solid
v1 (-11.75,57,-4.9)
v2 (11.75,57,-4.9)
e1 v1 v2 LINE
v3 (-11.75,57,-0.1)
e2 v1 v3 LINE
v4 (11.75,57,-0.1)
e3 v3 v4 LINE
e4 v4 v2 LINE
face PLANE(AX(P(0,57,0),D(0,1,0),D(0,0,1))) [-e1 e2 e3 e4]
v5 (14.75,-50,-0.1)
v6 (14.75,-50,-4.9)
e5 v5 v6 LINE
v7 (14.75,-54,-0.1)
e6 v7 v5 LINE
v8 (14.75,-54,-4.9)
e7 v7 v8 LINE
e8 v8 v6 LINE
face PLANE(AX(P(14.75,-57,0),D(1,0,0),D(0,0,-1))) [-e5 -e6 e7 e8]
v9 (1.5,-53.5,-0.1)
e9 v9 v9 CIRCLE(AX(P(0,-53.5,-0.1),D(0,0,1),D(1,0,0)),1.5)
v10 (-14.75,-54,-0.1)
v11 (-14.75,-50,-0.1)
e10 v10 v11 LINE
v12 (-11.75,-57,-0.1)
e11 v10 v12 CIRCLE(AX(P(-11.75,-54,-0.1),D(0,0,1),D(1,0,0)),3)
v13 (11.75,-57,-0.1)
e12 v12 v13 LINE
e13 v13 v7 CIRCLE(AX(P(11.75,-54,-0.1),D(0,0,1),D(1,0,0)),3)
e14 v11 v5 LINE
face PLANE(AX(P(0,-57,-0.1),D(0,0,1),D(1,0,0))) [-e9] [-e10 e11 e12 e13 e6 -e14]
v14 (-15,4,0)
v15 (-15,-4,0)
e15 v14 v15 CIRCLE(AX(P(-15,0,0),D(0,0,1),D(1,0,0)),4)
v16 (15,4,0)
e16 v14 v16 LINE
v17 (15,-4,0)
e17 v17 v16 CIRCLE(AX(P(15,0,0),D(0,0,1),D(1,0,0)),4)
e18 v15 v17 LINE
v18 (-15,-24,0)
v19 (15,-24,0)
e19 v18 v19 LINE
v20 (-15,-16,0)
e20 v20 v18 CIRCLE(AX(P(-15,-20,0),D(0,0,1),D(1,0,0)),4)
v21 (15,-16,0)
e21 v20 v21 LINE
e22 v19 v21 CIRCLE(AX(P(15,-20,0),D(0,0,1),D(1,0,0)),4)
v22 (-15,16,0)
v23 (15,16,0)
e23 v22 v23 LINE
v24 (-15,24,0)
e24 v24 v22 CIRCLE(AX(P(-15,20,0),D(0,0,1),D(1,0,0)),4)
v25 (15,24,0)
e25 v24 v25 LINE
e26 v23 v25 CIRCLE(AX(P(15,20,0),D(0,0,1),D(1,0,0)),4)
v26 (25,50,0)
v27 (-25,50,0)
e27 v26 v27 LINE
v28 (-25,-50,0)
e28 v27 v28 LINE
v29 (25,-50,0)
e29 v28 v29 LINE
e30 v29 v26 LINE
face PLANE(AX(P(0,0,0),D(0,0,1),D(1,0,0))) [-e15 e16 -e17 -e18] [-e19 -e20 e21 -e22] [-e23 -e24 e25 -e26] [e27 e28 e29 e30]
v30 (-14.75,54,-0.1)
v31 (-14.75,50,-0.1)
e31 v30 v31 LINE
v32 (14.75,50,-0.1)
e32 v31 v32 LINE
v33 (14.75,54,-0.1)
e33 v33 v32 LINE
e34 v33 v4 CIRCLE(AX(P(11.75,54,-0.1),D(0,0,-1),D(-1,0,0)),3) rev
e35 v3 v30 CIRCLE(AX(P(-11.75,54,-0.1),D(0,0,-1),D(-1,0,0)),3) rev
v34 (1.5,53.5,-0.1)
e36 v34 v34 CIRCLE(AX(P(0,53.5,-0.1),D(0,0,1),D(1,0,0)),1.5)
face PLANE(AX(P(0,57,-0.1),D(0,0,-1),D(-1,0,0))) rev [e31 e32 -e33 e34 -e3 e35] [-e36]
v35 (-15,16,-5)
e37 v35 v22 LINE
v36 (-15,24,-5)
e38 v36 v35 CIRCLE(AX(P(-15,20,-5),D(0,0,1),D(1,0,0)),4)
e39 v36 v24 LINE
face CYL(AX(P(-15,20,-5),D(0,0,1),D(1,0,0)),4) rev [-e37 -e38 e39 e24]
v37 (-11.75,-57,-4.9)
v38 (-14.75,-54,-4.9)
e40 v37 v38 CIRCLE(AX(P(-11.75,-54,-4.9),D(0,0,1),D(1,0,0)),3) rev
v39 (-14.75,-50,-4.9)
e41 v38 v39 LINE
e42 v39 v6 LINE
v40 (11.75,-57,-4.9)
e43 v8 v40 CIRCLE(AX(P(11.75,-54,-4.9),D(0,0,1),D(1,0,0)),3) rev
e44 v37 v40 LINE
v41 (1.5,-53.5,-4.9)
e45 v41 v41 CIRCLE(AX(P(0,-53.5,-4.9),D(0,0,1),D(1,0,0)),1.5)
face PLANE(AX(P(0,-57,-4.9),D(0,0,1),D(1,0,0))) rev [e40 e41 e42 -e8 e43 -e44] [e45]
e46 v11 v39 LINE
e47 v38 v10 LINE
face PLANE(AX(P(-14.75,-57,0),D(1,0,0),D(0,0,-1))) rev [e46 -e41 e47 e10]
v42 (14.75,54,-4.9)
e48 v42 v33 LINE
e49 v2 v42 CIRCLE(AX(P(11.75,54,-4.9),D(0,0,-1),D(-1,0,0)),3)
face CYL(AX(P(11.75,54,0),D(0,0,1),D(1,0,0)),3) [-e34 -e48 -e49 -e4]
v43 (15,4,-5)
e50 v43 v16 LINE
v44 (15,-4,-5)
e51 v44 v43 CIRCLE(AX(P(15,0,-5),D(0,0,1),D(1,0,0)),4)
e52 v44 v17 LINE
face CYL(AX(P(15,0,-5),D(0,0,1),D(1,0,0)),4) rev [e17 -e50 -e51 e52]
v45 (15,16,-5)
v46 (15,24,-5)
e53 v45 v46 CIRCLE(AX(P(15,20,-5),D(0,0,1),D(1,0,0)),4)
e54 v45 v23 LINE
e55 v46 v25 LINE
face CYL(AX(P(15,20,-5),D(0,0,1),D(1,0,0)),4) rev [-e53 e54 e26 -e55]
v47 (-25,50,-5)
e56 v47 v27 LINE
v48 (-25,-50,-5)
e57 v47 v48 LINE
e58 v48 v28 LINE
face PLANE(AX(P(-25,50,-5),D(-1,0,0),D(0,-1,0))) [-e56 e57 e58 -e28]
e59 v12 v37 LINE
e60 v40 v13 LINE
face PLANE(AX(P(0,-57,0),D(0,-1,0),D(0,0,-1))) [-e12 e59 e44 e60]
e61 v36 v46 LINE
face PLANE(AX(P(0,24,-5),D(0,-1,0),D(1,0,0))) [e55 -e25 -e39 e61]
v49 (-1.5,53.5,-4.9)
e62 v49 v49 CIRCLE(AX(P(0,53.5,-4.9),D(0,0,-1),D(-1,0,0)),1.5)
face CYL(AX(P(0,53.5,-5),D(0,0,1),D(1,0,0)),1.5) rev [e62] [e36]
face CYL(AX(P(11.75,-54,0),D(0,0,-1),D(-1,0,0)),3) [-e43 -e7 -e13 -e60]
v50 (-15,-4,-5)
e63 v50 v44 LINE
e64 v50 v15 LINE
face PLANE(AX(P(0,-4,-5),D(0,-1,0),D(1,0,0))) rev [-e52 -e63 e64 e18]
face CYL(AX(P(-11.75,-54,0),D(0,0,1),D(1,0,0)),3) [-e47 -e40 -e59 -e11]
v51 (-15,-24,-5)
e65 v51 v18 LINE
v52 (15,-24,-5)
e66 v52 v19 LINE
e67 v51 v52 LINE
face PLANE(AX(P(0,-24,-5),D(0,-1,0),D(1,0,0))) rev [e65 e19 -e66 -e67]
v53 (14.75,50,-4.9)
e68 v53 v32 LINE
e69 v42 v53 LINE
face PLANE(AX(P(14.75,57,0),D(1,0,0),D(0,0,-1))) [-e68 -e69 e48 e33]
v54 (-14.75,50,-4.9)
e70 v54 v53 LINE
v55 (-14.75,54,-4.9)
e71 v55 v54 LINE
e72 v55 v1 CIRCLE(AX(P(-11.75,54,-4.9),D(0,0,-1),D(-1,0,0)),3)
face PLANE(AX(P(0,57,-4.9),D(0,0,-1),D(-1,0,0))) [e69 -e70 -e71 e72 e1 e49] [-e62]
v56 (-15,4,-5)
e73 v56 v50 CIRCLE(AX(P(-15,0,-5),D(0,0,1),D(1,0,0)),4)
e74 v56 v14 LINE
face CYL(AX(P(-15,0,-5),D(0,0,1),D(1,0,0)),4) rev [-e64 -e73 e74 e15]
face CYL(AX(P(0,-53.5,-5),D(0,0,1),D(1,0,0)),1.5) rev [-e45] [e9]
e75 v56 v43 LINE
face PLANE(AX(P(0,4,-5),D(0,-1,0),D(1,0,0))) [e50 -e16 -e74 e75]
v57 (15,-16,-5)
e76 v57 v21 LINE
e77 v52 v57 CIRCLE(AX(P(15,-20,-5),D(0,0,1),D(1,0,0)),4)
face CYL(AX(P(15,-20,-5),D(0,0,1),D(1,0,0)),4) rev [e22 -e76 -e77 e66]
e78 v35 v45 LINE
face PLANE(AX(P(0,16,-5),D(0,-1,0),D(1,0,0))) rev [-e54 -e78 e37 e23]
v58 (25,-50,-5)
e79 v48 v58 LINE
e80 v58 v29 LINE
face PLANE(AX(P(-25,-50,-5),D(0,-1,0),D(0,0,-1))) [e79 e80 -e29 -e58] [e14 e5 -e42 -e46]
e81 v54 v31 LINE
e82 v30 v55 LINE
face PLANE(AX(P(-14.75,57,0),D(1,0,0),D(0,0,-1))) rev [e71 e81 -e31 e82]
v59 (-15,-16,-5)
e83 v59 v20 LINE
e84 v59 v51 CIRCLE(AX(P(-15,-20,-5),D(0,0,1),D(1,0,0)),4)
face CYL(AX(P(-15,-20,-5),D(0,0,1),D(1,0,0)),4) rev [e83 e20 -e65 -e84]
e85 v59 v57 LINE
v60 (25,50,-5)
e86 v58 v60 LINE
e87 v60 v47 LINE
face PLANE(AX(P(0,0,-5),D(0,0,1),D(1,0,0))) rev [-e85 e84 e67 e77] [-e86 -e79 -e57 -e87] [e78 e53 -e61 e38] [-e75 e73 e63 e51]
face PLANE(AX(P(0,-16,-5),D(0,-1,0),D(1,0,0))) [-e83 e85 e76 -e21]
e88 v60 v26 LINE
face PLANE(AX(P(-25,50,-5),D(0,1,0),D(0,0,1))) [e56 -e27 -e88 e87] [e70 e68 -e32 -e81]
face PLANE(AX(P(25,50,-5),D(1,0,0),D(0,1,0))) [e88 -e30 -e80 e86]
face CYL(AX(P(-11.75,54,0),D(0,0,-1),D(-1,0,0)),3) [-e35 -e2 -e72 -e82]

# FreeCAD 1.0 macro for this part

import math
import FreeCAD as App
import Part
import Sketcher
from FreeCAD import Vector


def edges_at(feature, points):
    """Names of the edges that pass closest to the given points."""
    edges = feature.Shape.Edges
    near = lambda p: min(range(len(edges)), key=lambda i: edges[i].distToShape(Part.Vertex(*p))[0])
    return sorted({f"Edge{near(p) + 1}" for p in points})

doc = App.newDocument("Part")
body = doc.addObject("PartDesign::Body", "Body")

# Sketch on XY plane
sketch1 = body.newObject("Sketcher::SketchObject", "Sketch")
sketch1.AttachmentSupport = (doc.getObject("XY_Plane"), [""])
sketch1.MapMode = "FlatFace"
sketch1.addGeometry(Part.LineSegment(Vector(-25, 50, 0), Vector(-25, -50, 0)), False)
sketch1.addGeometry(Part.LineSegment(Vector(-25, -50, 0), Vector(25, -50, 0)), False)
sketch1.addGeometry(Part.LineSegment(Vector(25, -50, 0), Vector(25, 50, 0)), False)
sketch1.addGeometry(Part.LineSegment(Vector(25, 50, 0), Vector(-25, 50, 0)), False)
sketch1.addConstraint(Sketcher.Constraint("Coincident", 0, 2, 1, 1))
sketch1.addConstraint(Sketcher.Constraint("Coincident", 1, 2, 2, 1))
sketch1.addConstraint(Sketcher.Constraint("Coincident", 2, 2, 3, 1))
sketch1.addConstraint(Sketcher.Constraint("Coincident", 3, 2, 0, 1))
sketch1.addConstraint(Sketcher.Constraint("Vertical", 0))
sketch1.addConstraint(Sketcher.Constraint("Horizontal", 1))
sketch1.addConstraint(Sketcher.Constraint("Vertical", 2))
sketch1.addConstraint(Sketcher.Constraint("Horizontal", 3))
sketch1.addConstraint(Sketcher.Constraint("Symmetric", 0, 2, 2, 2, -1, 1))
sketch1.addConstraint(Sketcher.Constraint("DistanceX", 1, 1, 1, 2, 50.0))
sketch1.addConstraint(Sketcher.Constraint("DistanceY", 0, 2, 0, 1, 100.0))
pad1 = body.newObject("PartDesign::Pad", "Pad")
pad1.Profile = sketch1
pad1.Length = 5
pad1.Reversed = True

# Sketch on XZ plane
sketch2 = body.newObject("Sketcher::SketchObject", "Sketch001")
sketch2.AttachmentSupport = (doc.getObject("XZ_Plane"), [""])
sketch2.MapMode = "FlatFace"
sketch2.AttachmentOffset = App.Placement(Vector(0, 0, -50), App.Rotation())
sketch2.addGeometry(Part.LineSegment(Vector(-14.75, -4.9, 0), Vector(-14.75, -0.1, 0)), False)
sketch2.addGeometry(Part.LineSegment(Vector(-14.75, -0.1, 0), Vector(14.75, -0.1, 0)), False)
sketch2.addGeometry(Part.LineSegment(Vector(14.75, -0.1, 0), Vector(14.75, -4.9, 0)), False)
sketch2.addGeometry(Part.LineSegment(Vector(14.75, -4.9, 0), Vector(-14.75, -4.9, 0)), False)
sketch2.addConstraint(Sketcher.Constraint("Coincident", 0, 2, 1, 1))
sketch2.addConstraint(Sketcher.Constraint("Coincident", 1, 2, 2, 1))
sketch2.addConstraint(Sketcher.Constraint("Coincident", 2, 2, 3, 1))
sketch2.addConstraint(Sketcher.Constraint("Coincident", 3, 2, 0, 1))
sketch2.addConstraint(Sketcher.Constraint("Vertical", 0))
sketch2.addConstraint(Sketcher.Constraint("Horizontal", 1))
sketch2.addConstraint(Sketcher.Constraint("Vertical", 2))
sketch2.addConstraint(Sketcher.Constraint("Horizontal", 3))
sketch2.addConstraint(Sketcher.Constraint("DistanceX", 1, 1, 1, 2, 29.5))
sketch2.addConstraint(Sketcher.Constraint("DistanceY", 0, 1, 0, 2, 4.8))
sketch2.addConstraint(Sketcher.Constraint("DistanceY", 0, 2, -1, 1, 0.1))
sketch2.addConstraint(Sketcher.Constraint("DistanceX", 0, 2, -1, 1, 14.75))
pad2 = body.newObject("PartDesign::Pad", "Pad001")
pad2.Profile = sketch2
pad2.Length = 7
pad2.Reversed = True

# Sketch on XZ plane
sketch3 = body.newObject("Sketcher::SketchObject", "Sketch002")
sketch3.AttachmentSupport = (doc.getObject("XZ_Plane"), [""])
sketch3.MapMode = "FlatFace"
sketch3.AttachmentOffset = App.Placement(Vector(0, 0, 50), App.Rotation())
sketch3.addGeometry(Part.LineSegment(Vector(-14.75, -0.1, 0), Vector(-14.75, -4.9, 0)), False)
sketch3.addGeometry(Part.LineSegment(Vector(-14.75, -4.9, 0), Vector(14.75, -4.9, 0)), False)
sketch3.addGeometry(Part.LineSegment(Vector(14.75, -4.9, 0), Vector(14.75, -0.1, 0)), False)
sketch3.addGeometry(Part.LineSegment(Vector(14.75, -0.1, 0), Vector(-14.75, -0.1, 0)), False)
sketch3.addConstraint(Sketcher.Constraint("Coincident", 0, 2, 1, 1))
sketch3.addConstraint(Sketcher.Constraint("Coincident", 1, 2, 2, 1))
sketch3.addConstraint(Sketcher.Constraint("Coincident", 2, 2, 3, 1))
sketch3.addConstraint(Sketcher.Constraint("Coincident", 3, 2, 0, 1))
sketch3.addConstraint(Sketcher.Constraint("Vertical", 0))
sketch3.addConstraint(Sketcher.Constraint("Horizontal", 1))
sketch3.addConstraint(Sketcher.Constraint("Vertical", 2))
sketch3.addConstraint(Sketcher.Constraint("Horizontal", 3))
sketch3.addConstraint(Sketcher.Constraint("DistanceX", 1, 1, 1, 2, 29.5))
sketch3.addConstraint(Sketcher.Constraint("DistanceY", 0, 2, 0, 1, 4.8))
sketch3.addConstraint(Sketcher.Constraint("DistanceY", 0, 2, -1, 1, 4.9))
sketch3.addConstraint(Sketcher.Constraint("DistanceX", 0, 2, -1, 1, 14.75))
pad3 = body.newObject("PartDesign::Pad", "Pad002")
pad3.Profile = sketch3
pad3.Length = 7

# Sketch on XY plane
sketch4 = body.newObject("Sketcher::SketchObject", "Sketch003")
sketch4.AttachmentSupport = (doc.getObject("XY_Plane"), [""])
sketch4.MapMode = "FlatFace"
sketch4.addGeometry(Part.ArcOfCircle(Part.Circle(Vector(-15, 20, 0), Vector(0, 0, 1), 4), math.radians(90), math.radians(180)), False)
sketch4.addGeometry(Part.ArcOfCircle(Part.Circle(Vector(-15, 20, 0), Vector(0, 0, 1), 4), math.radians(180), math.radians(270)), False)
sketch4.addGeometry(Part.LineSegment(Vector(-15, 16, 0), Vector(15, 16, 0)), False)
sketch4.addGeometry(Part.ArcOfCircle(Part.Circle(Vector(15, 20, 0), Vector(0, 0, 1), 4), math.radians(-90), math.radians(0)), False)
sketch4.addGeometry(Part.ArcOfCircle(Part.Circle(Vector(15, 20, 0), Vector(0, 0, 1), 4), math.radians(0), math.radians(90)), False)
sketch4.addGeometry(Part.LineSegment(Vector(15, 24, 0), Vector(-15, 24, 0)), False)
sketch4.addGeometry(Part.ArcOfCircle(Part.Circle(Vector(-15, 0, 0), Vector(0, 0, 1), 4), math.radians(90), math.radians(180)), False)
sketch4.addGeometry(Part.ArcOfCircle(Part.Circle(Vector(-15, 0, 0), Vector(0, 0, 1), 4), math.radians(180), math.radians(270)), False)
sketch4.addGeometry(Part.LineSegment(Vector(-15, -4, 0), Vector(15, -4, 0)), False)
sketch4.addGeometry(Part.ArcOfCircle(Part.Circle(Vector(15, 0, 0), Vector(0, 0, 1), 4), math.radians(-90), math.radians(0)), False)
sketch4.addGeometry(Part.ArcOfCircle(Part.Circle(Vector(15, 0, 0), Vector(0, 0, 1), 4), math.radians(0), math.radians(90)), False)
sketch4.addGeometry(Part.LineSegment(Vector(15, 4, 0), Vector(-15, 4, 0)), False)
sketch4.addGeometry(Part.ArcOfCircle(Part.Circle(Vector(-15, -20, 0), Vector(0, 0, 1), 4), math.radians(90), math.radians(180)), False)
sketch4.addGeometry(Part.ArcOfCircle(Part.Circle(Vector(-15, -20, 0), Vector(0, 0, 1), 4), math.radians(180), math.radians(270)), False)
sketch4.addGeometry(Part.LineSegment(Vector(-15, -24, 0), Vector(15, -24, 0)), False)
sketch4.addGeometry(Part.ArcOfCircle(Part.Circle(Vector(15, -20, 0), Vector(0, 0, 1), 4), math.radians(-90), math.radians(0)), False)
sketch4.addGeometry(Part.ArcOfCircle(Part.Circle(Vector(15, -20, 0), Vector(0, 0, 1), 4), math.radians(0), math.radians(90)), False)
sketch4.addGeometry(Part.LineSegment(Vector(15, -16, 0), Vector(-15, -16, 0)), False)
sketch4.addConstraint(Sketcher.Constraint("Tangent", 0, 2, 1, 1))
sketch4.addConstraint(Sketcher.Constraint("Tangent", 1, 2, 2, 1))
sketch4.addConstraint(Sketcher.Constraint("Tangent", 2, 2, 3, 1))
sketch4.addConstraint(Sketcher.Constraint("Tangent", 3, 2, 4, 1))
sketch4.addConstraint(Sketcher.Constraint("Tangent", 4, 2, 5, 1))
sketch4.addConstraint(Sketcher.Constraint("Tangent", 5, 2, 0, 1))
sketch4.addConstraint(Sketcher.Constraint("Tangent", 6, 2, 7, 1))
sketch4.addConstraint(Sketcher.Constraint("Tangent", 7, 2, 8, 1))
sketch4.addConstraint(Sketcher.Constraint("Tangent", 8, 2, 9, 1))
sketch4.addConstraint(Sketcher.Constraint("Tangent", 9, 2, 10, 1))
sketch4.addConstraint(Sketcher.Constraint("Tangent", 10, 2, 11, 1))
sketch4.addConstraint(Sketcher.Constraint("Tangent", 11, 2, 6, 1))
sketch4.addConstraint(Sketcher.Constraint("Tangent", 12, 2, 13, 1))
sketch4.addConstraint(Sketcher.Constraint("Tangent", 13, 2, 14, 1))
sketch4.addConstraint(Sketcher.Constraint("Tangent", 14, 2, 15, 1))
sketch4.addConstraint(Sketcher.Constraint("Tangent", 15, 2, 16, 1))
sketch4.addConstraint(Sketcher.Constraint("Tangent", 16, 2, 17, 1))
sketch4.addConstraint(Sketcher.Constraint("Tangent", 17, 2, 12, 1))
sketch4.addConstraint(Sketcher.Constraint("Horizontal", 2))
sketch4.addConstraint(Sketcher.Constraint("Horizontal", 5))
sketch4.addConstraint(Sketcher.Constraint("Horizontal", 8))
sketch4.addConstraint(Sketcher.Constraint("Horizontal", 11))
sketch4.addConstraint(Sketcher.Constraint("Horizontal", 14))
sketch4.addConstraint(Sketcher.Constraint("Horizontal", 17))
sketch4.addConstraint(Sketcher.Constraint("Equal", 0, 1))
sketch4.addConstraint(Sketcher.Constraint("Equal", 1, 3))
sketch4.addConstraint(Sketcher.Constraint("Equal", 4, 6))
sketch4.addConstraint(Sketcher.Constraint("Equal", 6, 7))
sketch4.addConstraint(Sketcher.Constraint("Equal", 7, 9))
sketch4.addConstraint(Sketcher.Constraint("Equal", 10, 12))
sketch4.addConstraint(Sketcher.Constraint("Equal", 12, 13))
sketch4.addConstraint(Sketcher.Constraint("Equal", 13, 15))
sketch4.addConstraint(Sketcher.Constraint("Symmetric", 6, 3, 9, 3, -1, 1))
sketch4.addConstraint(Sketcher.Constraint("Symmetric", 3, 3, 12, 3, -1, 1))
sketch4.addConstraint(Sketcher.Constraint("Symmetric", 0, 2, 15, 2, -1, 1))
sketch4.addConstraint(Sketcher.Constraint("Symmetric", 0, 2, 3, 2, -2))
sketch4.addConstraint(Sketcher.Constraint("PointOnObject", 6, 2, -1))
sketch4.addConstraint(Sketcher.Constraint("PointOnObject", 9, 2, -1))
sketch4.addConstraint(Sketcher.Constraint("Horizontal", 4, 3, 0, 2))
sketch4.addConstraint(Sketcher.Constraint("Horizontal", 16, 3, 12, 2))
sketch4.addConstraint(Sketcher.Constraint("Vertical", 1, 3, 6, 3))
sketch4.addConstraint(Sketcher.Constraint("Radius", 0, 4.0))
sketch4.addConstraint(Sketcher.Constraint("DistanceX", 2, 1, 2, 2, 30.0))
sketch4.addConstraint(Sketcher.Constraint("DistanceY", -1, 1, 0, 3, 20.0))
pocket1 = body.newObject("PartDesign::Pocket", "Pocket")
pocket1.Profile = sketch4
pocket1.Length = 5
doc.recompute()

fillet = body.newObject("PartDesign::Fillet", "Fillet")
fillet.Base = (pocket1, edges_at(pocket1, [
    (14.75, 57, -2.5),
    (-14.75, 57, -2.5),
    (14.75, -57, -2.5),
    (-14.75, -57, -2.5),
]))
fillet.Radius = 3

# Sketch on XY plane
sketch5 = body.newObject("Sketcher::SketchObject", "Sketch004")
sketch5.AttachmentSupport = (doc.getObject("XY_Plane"), [""])
sketch5.MapMode = "FlatFace"
sketch5.AttachmentOffset = App.Placement(Vector(0, 0, -0.1), App.Rotation())
sketch5.addGeometry(Part.Circle(Vector(0, 53.5, 0), Vector(0, 0, 1), 1.5), False)
sketch5.addConstraint(Sketcher.Constraint("PointOnObject", 0, 3, -2))
sketch5.addConstraint(Sketcher.Constraint("Diameter", 0, 3.0))
sketch5.addConstraint(Sketcher.Constraint("DistanceY", -1, 1, 0, 3, 53.5))
pocket2 = body.newObject("PartDesign::Pocket", "Pocket001")
pocket2.Profile = sketch5
pocket2.Type = "ThroughAll"

# Sketch on XY plane
sketch6 = body.newObject("Sketcher::SketchObject", "Sketch005")
sketch6.AttachmentSupport = (doc.getObject("XY_Plane"), [""])
sketch6.MapMode = "FlatFace"
sketch6.AttachmentOffset = App.Placement(Vector(0, 0, -0.1), App.Rotation())
sketch6.addGeometry(Part.Circle(Vector(0, -53.5, 0), Vector(0, 0, 1), 1.5), False)
sketch6.addConstraint(Sketcher.Constraint("PointOnObject", 0, 3, -2))
sketch6.addConstraint(Sketcher.Constraint("Diameter", 0, 3.0))
sketch6.addConstraint(Sketcher.Constraint("DistanceY", 0, 3, -1, 1, 53.5))
pocket3 = body.newObject("PartDesign::Pocket", "Pocket002")
pocket3.Profile = sketch6
pocket3.Type = "ThroughAll"

doc.recompute()
